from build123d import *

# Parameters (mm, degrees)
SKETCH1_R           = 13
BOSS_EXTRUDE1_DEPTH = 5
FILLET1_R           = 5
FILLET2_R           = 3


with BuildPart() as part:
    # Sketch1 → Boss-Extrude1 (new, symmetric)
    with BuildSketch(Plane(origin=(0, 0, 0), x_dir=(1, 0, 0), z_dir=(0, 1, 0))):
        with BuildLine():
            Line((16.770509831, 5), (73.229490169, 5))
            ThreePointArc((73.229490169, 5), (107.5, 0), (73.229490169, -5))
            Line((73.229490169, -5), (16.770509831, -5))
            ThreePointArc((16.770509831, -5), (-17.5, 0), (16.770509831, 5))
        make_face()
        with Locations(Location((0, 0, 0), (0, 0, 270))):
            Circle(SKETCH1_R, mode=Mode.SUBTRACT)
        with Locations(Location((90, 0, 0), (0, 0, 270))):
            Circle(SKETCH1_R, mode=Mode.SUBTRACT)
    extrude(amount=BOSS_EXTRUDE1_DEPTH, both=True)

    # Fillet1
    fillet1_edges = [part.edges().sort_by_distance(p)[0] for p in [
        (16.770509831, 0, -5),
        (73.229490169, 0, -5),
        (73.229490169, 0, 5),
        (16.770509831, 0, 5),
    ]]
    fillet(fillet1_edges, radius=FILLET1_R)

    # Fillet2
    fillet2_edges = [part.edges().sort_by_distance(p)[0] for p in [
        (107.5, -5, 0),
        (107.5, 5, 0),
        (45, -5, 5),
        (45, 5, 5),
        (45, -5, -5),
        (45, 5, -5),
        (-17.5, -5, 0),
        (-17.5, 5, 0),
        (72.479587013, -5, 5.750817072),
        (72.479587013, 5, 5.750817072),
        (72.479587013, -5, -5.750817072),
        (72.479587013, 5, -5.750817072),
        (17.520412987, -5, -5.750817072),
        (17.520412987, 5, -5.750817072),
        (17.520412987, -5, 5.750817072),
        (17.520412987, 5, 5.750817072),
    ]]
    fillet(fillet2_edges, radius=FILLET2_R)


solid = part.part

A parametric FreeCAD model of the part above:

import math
import FreeCAD as App
import Part
import Sketcher


def edges_at(feature, points):
    """Names of the edges that pass closest to the given points."""
    edges = feature.Shape.Edges
    near = lambda p: min(range(len(edges)), key=lambda i: edges[i].distToShape(Part.Vertex(*p))[0])
    return sorted({f"Edge{near(p) + 1}" for p in points})

doc = App.newDocument("Part")
body = doc.addObject("PartDesign::Body", "Body")

# Sketch on XZ plane
sketch1 = body.newObject("Sketcher::SketchObject", "Sketch")
sketch1.AttachmentSupport = (doc.getObject("XZ_Plane"), [""])
sketch1.MapMode = "FlatFace"
sketch1.addGeometry(Part.LineSegment(App.Vector(73, -5, 0), App.Vector(17, -5, 0)), False)
sketch1.addGeometry(Part.ArcOfCircle(Part.Circle(App.Vector(0, 0, 0), App.Vector(0, 0, 1), 18), math.radians(17), math.radians(343)), False)
sketch1.addGeometry(Part.LineSegment(App.Vector(17, 5, 0), App.Vector(73, 5, 0)), False)
sketch1.addGeometry(Part.ArcOfCircle(Part.Circle(App.Vector(90, 0, 0), App.Vector(0, 0, 1), 18), math.radians(-163), math.radians(163)), False)
sketch1.addGeometry(Part.Circle(App.Vector(90, 0, 0), App.Vector(0, 0, 1), 13), False)
sketch1.addGeometry(Part.Circle(App.Vector(0, 0, 0), App.Vector(0, 0, 1), 13), False)
sketch1.addConstraint(Sketcher.Constraint("Coincident", 0, 2, 1, 2))
sketch1.addConstraint(Sketcher.Constraint("Coincident", 1, 1, 2, 1))
sketch1.addConstraint(Sketcher.Constraint("Coincident", 2, 2, 3, 2))
sketch1.addConstraint(Sketcher.Constraint("Coincident", 3, 1, 0, 1))
sketch1.addConstraint(Sketcher.Constraint("Horizontal", 0))
sketch1.addConstraint(Sketcher.Constraint("Horizontal", 2))
sketch1.addConstraint(Sketcher.Constraint("Coincident", 1, 3, -1, 1))
sketch1.addConstraint(Sketcher.Constraint("Coincident", 5, 3, -1, 1))
sketch1.addConstraint(Sketcher.Constraint("Coincident", 4, 3, 3, 3))
sketch1.addConstraint(Sketcher.Constraint("Equal", 1, 3))
sketch1.addConstraint(Sketcher.Constraint("Equal", 4, 5))
sketch1.addConstraint(Sketcher.Constraint("Symmetric", 2, 2, 3, 1, -1))
sketch1.addConstraint(Sketcher.Constraint("Diameter", 4, 26.0))
sketch1.addConstraint(Sketcher.Constraint("Radius", 1, 17.5))
sketch1.addConstraint(Sketcher.Constraint("DistanceX", -1, 1, 3, 3, 90.0))
sketch1.addConstraint(Sketcher.Constraint("DistanceY", 0, 2, -1, 1, 5.0))
pad1 = body.newObject("PartDesign::Pad", "Pad")
pad1.Profile = sketch1
pad1.Length = 10
pad1.Midplane = True
doc.recompute()

fillet = body.newObject("PartDesign::Fillet", "Fillet")
fillet.Base = (pad1, edges_at(pad1, [
    (16.771, 0, -5),
    (73.229, 0, -5),
    (73.229, 0, 5),
    (16.771, 0, 5),
]))
fillet.Radius = 5
doc.recompute()

fillet2 = body.newObject("PartDesign::Fillet", "Fillet001")
fillet2.Base = (fillet, edges_at(fillet, [
    (107.5, -5, 0),
    (107.5, 5, 0),
    (45, -5, 5),
    (45, 5, 5),
    (45, -5, -5),
    (45, 5, -5),
    (-17.5, -5, 0),
    (-17.5, 5, 0),
    (72.48, -5, 5.751),
    (72.48, 5, 5.751),
    (72.48, -5, -5.751),
    (72.48, 5, -5.751),
    (17.52, -5, -5.751),
    (17.52, 5, -5.751),
    (17.52, -5, 5.751),
    (17.52, 5, 5.751),
]))
fillet2.Radius = 3

doc.recompute()
